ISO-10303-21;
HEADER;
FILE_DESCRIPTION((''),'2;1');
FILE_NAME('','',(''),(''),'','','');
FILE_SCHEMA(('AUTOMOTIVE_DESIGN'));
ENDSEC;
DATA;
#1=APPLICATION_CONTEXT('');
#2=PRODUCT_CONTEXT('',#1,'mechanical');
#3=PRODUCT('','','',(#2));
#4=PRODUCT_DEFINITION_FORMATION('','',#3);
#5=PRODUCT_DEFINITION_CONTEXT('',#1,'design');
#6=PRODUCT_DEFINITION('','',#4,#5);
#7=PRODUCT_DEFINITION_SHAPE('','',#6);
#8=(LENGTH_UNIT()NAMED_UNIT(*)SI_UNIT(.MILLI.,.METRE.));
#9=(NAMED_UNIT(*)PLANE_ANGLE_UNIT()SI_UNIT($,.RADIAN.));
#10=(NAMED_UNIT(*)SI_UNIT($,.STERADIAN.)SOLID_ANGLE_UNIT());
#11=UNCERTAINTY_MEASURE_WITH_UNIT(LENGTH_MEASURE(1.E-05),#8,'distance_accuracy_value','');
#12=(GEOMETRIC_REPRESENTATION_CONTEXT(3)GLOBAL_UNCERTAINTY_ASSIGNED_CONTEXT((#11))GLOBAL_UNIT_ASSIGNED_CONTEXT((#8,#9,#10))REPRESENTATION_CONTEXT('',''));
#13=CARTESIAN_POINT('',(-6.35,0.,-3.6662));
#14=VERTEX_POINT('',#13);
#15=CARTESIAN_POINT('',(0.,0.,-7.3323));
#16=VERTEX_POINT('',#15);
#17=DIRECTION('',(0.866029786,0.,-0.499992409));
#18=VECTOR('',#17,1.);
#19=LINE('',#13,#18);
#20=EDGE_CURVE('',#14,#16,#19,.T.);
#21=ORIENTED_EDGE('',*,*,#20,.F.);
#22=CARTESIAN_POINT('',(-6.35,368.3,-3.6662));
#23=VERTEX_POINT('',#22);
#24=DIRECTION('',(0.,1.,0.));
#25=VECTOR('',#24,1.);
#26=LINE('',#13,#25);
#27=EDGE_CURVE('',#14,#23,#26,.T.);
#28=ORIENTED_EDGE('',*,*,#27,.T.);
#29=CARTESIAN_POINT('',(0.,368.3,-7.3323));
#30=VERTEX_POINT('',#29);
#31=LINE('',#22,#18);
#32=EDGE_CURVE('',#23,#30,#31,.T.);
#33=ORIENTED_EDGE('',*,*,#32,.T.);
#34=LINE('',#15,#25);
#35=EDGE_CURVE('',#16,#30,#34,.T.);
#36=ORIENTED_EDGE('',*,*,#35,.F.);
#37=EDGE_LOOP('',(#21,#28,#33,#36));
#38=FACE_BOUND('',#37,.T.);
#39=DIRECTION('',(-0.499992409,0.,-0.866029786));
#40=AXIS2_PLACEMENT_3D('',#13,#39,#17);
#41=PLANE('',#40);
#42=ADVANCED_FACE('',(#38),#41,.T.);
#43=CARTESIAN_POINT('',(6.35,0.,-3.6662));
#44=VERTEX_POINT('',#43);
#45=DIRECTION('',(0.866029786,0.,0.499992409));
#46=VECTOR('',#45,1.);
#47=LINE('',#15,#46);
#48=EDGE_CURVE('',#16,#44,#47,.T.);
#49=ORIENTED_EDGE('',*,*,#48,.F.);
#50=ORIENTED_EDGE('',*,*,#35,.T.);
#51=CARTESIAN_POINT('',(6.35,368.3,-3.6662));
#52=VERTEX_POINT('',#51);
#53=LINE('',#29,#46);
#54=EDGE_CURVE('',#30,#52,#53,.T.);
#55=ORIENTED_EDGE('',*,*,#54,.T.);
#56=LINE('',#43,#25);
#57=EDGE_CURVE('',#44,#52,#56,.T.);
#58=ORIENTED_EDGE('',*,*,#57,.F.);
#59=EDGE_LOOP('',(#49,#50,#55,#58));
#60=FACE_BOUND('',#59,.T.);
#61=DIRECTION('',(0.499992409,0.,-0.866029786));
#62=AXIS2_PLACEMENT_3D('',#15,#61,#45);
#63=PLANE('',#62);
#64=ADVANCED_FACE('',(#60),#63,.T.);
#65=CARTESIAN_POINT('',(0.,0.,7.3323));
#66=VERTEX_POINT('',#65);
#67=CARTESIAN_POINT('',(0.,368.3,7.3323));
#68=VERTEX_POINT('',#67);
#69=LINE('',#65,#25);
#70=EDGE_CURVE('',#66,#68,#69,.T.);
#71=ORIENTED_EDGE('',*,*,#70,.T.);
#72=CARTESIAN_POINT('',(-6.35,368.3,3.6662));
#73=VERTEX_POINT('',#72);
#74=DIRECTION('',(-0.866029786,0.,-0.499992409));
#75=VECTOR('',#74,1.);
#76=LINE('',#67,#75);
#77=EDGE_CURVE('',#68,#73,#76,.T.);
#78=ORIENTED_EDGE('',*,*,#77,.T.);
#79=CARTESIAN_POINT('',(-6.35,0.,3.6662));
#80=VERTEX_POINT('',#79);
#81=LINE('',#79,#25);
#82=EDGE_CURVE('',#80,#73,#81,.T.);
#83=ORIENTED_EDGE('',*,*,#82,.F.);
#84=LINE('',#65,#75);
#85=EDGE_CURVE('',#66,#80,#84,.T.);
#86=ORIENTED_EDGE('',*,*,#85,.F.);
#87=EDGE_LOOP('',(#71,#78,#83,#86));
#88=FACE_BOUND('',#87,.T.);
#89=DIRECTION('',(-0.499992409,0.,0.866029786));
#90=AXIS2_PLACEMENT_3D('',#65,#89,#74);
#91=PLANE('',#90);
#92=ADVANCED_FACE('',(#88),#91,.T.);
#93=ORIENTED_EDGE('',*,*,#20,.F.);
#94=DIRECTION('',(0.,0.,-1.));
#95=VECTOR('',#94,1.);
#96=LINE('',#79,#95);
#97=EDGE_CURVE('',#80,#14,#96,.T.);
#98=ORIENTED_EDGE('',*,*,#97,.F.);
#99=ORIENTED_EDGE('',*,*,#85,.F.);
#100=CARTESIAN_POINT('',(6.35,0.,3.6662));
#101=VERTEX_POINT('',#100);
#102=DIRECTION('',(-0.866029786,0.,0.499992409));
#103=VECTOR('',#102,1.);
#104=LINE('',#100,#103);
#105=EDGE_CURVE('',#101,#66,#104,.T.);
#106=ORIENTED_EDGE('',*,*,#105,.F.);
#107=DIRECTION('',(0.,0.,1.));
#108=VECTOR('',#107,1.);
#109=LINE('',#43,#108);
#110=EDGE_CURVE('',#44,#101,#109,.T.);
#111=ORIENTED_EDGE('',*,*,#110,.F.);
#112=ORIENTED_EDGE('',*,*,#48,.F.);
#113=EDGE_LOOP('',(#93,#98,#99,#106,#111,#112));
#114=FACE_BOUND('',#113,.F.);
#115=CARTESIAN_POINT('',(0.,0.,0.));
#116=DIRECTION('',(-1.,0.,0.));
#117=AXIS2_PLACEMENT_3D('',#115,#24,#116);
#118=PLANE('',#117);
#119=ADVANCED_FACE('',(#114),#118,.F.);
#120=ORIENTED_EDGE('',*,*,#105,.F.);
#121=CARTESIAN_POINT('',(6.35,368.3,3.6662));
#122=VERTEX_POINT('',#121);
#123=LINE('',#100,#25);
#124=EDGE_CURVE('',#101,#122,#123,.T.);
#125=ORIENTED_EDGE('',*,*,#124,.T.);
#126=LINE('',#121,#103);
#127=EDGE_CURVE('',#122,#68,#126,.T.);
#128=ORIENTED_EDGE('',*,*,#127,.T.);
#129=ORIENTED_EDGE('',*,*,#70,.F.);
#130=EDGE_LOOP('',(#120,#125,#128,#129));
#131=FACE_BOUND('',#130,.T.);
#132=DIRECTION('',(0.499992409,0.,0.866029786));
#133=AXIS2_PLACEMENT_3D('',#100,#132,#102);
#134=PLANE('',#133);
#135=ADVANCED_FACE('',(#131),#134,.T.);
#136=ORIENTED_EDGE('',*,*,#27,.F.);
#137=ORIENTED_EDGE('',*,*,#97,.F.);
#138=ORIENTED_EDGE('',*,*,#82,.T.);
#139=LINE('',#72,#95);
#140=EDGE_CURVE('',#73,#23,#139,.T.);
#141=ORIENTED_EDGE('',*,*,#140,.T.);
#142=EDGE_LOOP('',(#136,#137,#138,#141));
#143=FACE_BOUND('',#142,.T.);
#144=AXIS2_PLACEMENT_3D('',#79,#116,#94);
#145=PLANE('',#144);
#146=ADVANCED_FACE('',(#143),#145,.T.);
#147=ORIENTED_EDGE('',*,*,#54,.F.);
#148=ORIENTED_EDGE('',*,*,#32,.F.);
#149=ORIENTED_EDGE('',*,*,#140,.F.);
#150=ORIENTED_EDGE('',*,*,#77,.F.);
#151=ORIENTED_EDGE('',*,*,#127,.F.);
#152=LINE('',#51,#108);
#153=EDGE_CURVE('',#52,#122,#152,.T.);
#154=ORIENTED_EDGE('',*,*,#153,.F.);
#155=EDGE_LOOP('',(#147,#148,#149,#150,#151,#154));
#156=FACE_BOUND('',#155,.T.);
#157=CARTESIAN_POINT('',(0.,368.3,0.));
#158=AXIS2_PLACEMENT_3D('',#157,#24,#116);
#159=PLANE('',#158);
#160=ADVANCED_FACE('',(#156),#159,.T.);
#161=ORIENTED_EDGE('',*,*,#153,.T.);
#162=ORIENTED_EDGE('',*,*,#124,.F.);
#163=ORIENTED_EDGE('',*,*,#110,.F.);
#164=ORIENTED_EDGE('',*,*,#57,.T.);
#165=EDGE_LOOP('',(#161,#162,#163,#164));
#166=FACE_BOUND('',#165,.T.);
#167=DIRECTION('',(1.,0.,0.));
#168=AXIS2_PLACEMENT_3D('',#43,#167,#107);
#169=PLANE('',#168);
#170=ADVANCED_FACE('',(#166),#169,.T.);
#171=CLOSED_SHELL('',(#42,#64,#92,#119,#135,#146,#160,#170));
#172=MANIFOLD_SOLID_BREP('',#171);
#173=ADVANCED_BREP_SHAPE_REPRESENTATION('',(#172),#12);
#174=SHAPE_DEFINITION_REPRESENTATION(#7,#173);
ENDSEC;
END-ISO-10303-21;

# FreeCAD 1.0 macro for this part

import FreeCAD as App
import Part
import Sketcher
from FreeCAD import Vector
Q = App.Units.Quantity

doc = App.newDocument("Part")
body = doc.addObject("PartDesign::Body", "Body")

# Sketch on XZ plane
sketch1 = body.newObject("Sketcher::SketchObject", "Sketch")
sketch1.AttachmentSupport = (doc.getObject("XZ_Plane"), [""])
sketch1.MapMode = "FlatFace"
sketch1.addGeometry([
    Part.LineSegment(Vector(6, -4, 0), Vector(0, -7, 0)),  # 0
    Part.LineSegment(Vector(0, -7, 0), Vector(-6, -4, 0)),  # 1
    Part.LineSegment(Vector(-6, -4, 0), Vector(-6, 4, 0)),  # 2
    Part.LineSegment(Vector(-6, 4, 0), Vector(0, 7, 0)),  # 3
    Part.LineSegment(Vector(0, 7, 0), Vector(6, 4, 0)),  # 4
    Part.LineSegment(Vector(6, 4, 0), Vector(6, -4, 0)),  # 5
], False)
sketch1.addConstraint([
    Sketcher.Constraint("Coincident", 0, 2, 1, 1),
    Sketcher.Constraint("Coincident", 1, 2, 2, 1),
    Sketcher.Constraint("Coincident", 2, 2, 3, 1),
    Sketcher.Constraint("Coincident", 3, 2, 4, 1),
    Sketcher.Constraint("Coincident", 4, 2, 5, 1),
    Sketcher.Constraint("Coincident", 5, 2, 0, 1),
    Sketcher.Constraint("Vertical", 2),
    Sketcher.Constraint("Vertical", 5),
    Sketcher.Constraint("Symmetric", 0, 2, 3, 2, -1, 1),
    Sketcher.Constraint("Symmetric", 1, 2, 4, 2, -1, 1),
    Sketcher.Constraint("PointOnObject", 0, 2, -2),
    Sketcher.Constraint("Parallel", 0, 3),
    Sketcher.Constraint("Horizontal", 2, 2, 4, 2),
    Sketcher.Constraint("DistanceX", 2, 2, 4, 2, Q("0.5 in")),
    Sketcher.Constraint("Angle", 0, Q("-150.0005 deg")),
    Sketcher.Constraint("DistanceY", 0, 2, 2, 2, Q("0.433 in")),
])
pad1 = body.newObject("PartDesign::Pad", "Pad")
pad1.Profile = sketch1
pad1.Length = Q("14.5 in")
pad1.Reversed = True

doc.recompute()
